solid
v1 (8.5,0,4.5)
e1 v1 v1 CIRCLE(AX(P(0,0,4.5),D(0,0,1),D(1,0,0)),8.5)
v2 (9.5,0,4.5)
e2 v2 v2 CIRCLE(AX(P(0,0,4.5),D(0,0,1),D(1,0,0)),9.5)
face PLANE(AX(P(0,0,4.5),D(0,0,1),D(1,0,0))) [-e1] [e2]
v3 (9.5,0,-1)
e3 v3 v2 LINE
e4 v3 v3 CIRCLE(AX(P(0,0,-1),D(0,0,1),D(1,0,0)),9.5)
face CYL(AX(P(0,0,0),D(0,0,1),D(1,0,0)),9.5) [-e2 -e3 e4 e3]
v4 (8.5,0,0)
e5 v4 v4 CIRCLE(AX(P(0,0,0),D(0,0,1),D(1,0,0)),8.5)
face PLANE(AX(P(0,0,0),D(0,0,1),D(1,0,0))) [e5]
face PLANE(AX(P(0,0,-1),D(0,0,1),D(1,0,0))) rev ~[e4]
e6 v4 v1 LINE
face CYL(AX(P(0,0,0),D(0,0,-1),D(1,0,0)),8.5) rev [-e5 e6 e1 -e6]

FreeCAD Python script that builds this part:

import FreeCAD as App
import Part
import Sketcher
from FreeCAD import Vector

doc = App.newDocument("Part")
params = doc.addObject("Spreadsheet::Sheet", "Params")
for row, (alias, value) in enumerate([
    ("sketch1_diameter", "19 mm"),
    ("sketch1_diameter2", "17 mm"),
    ("pad1_length", "4.5 mm"),
    ("sketch2_diameter", "19 mm"),
    ("pad2_length", "1 mm"),
], start=1):
    params.set(f"A{row}", alias)
    params.set(f"B{row}", "=" + value)
    params.setAlias(f"B{row}", alias)

body = doc.addObject("PartDesign::Body", "Body")

sketch1 = body.newObject("Sketcher::SketchObject", "Sketch")
sketch1.AttachmentSupport = (doc.getObject("XY_Plane"), [""])
sketch1.MapMode = "FlatFace"
sketch1.addGeometry([
    Part.Circle(Vector(0, 0, 0), Vector(0, 0, 1), 10),
    Part.Circle(Vector(0, 0, 0), Vector(0, 0, 1), 8),
], False)
sketch1.addConstraint([
    Sketcher.Constraint("Coincident", 0, 3, -1, 1),
    Sketcher.Constraint("Coincident", 1, 3, -1, 1),
    Sketcher.Constraint("Diameter", 0, 19.0),
    Sketcher.Constraint("Diameter", 1, 17.0),
])
sketch1.setExpression("Constraints[2]", "Params.sketch1_diameter")
sketch1.setExpression("Constraints[3]", "Params.sketch1_diameter2")
pad1 = body.newObject("PartDesign::Pad", "Pad")
pad1.Profile = sketch1
pad1.setExpression("Length", "Params.pad1_length")

sketch2 = body.newObject("Sketcher::SketchObject", "Sketch001")
sketch2.AttachmentSupport = (doc.getObject("XY_Plane"), [""])
sketch2.MapMode = "FlatFace"
sketch2.addGeometry(Part.Circle(Vector(0, 0, 0), Vector(0, 0, 1), 10), False)
sketch2.addConstraint([
    Sketcher.Constraint("Coincident", 0, 3, -1, 1),
    Sketcher.Constraint("Diameter", 0, 19.0),
])
sketch2.setExpression("Constraints[1]", "Params.sketch2_diameter")
pad2 = body.newObject("PartDesign::Pad", "Pad001")
pad2.Profile = sketch2
pad2.setExpression("Length", "Params.pad2_length")
pad2.Reversed = True

doc.recompute()
